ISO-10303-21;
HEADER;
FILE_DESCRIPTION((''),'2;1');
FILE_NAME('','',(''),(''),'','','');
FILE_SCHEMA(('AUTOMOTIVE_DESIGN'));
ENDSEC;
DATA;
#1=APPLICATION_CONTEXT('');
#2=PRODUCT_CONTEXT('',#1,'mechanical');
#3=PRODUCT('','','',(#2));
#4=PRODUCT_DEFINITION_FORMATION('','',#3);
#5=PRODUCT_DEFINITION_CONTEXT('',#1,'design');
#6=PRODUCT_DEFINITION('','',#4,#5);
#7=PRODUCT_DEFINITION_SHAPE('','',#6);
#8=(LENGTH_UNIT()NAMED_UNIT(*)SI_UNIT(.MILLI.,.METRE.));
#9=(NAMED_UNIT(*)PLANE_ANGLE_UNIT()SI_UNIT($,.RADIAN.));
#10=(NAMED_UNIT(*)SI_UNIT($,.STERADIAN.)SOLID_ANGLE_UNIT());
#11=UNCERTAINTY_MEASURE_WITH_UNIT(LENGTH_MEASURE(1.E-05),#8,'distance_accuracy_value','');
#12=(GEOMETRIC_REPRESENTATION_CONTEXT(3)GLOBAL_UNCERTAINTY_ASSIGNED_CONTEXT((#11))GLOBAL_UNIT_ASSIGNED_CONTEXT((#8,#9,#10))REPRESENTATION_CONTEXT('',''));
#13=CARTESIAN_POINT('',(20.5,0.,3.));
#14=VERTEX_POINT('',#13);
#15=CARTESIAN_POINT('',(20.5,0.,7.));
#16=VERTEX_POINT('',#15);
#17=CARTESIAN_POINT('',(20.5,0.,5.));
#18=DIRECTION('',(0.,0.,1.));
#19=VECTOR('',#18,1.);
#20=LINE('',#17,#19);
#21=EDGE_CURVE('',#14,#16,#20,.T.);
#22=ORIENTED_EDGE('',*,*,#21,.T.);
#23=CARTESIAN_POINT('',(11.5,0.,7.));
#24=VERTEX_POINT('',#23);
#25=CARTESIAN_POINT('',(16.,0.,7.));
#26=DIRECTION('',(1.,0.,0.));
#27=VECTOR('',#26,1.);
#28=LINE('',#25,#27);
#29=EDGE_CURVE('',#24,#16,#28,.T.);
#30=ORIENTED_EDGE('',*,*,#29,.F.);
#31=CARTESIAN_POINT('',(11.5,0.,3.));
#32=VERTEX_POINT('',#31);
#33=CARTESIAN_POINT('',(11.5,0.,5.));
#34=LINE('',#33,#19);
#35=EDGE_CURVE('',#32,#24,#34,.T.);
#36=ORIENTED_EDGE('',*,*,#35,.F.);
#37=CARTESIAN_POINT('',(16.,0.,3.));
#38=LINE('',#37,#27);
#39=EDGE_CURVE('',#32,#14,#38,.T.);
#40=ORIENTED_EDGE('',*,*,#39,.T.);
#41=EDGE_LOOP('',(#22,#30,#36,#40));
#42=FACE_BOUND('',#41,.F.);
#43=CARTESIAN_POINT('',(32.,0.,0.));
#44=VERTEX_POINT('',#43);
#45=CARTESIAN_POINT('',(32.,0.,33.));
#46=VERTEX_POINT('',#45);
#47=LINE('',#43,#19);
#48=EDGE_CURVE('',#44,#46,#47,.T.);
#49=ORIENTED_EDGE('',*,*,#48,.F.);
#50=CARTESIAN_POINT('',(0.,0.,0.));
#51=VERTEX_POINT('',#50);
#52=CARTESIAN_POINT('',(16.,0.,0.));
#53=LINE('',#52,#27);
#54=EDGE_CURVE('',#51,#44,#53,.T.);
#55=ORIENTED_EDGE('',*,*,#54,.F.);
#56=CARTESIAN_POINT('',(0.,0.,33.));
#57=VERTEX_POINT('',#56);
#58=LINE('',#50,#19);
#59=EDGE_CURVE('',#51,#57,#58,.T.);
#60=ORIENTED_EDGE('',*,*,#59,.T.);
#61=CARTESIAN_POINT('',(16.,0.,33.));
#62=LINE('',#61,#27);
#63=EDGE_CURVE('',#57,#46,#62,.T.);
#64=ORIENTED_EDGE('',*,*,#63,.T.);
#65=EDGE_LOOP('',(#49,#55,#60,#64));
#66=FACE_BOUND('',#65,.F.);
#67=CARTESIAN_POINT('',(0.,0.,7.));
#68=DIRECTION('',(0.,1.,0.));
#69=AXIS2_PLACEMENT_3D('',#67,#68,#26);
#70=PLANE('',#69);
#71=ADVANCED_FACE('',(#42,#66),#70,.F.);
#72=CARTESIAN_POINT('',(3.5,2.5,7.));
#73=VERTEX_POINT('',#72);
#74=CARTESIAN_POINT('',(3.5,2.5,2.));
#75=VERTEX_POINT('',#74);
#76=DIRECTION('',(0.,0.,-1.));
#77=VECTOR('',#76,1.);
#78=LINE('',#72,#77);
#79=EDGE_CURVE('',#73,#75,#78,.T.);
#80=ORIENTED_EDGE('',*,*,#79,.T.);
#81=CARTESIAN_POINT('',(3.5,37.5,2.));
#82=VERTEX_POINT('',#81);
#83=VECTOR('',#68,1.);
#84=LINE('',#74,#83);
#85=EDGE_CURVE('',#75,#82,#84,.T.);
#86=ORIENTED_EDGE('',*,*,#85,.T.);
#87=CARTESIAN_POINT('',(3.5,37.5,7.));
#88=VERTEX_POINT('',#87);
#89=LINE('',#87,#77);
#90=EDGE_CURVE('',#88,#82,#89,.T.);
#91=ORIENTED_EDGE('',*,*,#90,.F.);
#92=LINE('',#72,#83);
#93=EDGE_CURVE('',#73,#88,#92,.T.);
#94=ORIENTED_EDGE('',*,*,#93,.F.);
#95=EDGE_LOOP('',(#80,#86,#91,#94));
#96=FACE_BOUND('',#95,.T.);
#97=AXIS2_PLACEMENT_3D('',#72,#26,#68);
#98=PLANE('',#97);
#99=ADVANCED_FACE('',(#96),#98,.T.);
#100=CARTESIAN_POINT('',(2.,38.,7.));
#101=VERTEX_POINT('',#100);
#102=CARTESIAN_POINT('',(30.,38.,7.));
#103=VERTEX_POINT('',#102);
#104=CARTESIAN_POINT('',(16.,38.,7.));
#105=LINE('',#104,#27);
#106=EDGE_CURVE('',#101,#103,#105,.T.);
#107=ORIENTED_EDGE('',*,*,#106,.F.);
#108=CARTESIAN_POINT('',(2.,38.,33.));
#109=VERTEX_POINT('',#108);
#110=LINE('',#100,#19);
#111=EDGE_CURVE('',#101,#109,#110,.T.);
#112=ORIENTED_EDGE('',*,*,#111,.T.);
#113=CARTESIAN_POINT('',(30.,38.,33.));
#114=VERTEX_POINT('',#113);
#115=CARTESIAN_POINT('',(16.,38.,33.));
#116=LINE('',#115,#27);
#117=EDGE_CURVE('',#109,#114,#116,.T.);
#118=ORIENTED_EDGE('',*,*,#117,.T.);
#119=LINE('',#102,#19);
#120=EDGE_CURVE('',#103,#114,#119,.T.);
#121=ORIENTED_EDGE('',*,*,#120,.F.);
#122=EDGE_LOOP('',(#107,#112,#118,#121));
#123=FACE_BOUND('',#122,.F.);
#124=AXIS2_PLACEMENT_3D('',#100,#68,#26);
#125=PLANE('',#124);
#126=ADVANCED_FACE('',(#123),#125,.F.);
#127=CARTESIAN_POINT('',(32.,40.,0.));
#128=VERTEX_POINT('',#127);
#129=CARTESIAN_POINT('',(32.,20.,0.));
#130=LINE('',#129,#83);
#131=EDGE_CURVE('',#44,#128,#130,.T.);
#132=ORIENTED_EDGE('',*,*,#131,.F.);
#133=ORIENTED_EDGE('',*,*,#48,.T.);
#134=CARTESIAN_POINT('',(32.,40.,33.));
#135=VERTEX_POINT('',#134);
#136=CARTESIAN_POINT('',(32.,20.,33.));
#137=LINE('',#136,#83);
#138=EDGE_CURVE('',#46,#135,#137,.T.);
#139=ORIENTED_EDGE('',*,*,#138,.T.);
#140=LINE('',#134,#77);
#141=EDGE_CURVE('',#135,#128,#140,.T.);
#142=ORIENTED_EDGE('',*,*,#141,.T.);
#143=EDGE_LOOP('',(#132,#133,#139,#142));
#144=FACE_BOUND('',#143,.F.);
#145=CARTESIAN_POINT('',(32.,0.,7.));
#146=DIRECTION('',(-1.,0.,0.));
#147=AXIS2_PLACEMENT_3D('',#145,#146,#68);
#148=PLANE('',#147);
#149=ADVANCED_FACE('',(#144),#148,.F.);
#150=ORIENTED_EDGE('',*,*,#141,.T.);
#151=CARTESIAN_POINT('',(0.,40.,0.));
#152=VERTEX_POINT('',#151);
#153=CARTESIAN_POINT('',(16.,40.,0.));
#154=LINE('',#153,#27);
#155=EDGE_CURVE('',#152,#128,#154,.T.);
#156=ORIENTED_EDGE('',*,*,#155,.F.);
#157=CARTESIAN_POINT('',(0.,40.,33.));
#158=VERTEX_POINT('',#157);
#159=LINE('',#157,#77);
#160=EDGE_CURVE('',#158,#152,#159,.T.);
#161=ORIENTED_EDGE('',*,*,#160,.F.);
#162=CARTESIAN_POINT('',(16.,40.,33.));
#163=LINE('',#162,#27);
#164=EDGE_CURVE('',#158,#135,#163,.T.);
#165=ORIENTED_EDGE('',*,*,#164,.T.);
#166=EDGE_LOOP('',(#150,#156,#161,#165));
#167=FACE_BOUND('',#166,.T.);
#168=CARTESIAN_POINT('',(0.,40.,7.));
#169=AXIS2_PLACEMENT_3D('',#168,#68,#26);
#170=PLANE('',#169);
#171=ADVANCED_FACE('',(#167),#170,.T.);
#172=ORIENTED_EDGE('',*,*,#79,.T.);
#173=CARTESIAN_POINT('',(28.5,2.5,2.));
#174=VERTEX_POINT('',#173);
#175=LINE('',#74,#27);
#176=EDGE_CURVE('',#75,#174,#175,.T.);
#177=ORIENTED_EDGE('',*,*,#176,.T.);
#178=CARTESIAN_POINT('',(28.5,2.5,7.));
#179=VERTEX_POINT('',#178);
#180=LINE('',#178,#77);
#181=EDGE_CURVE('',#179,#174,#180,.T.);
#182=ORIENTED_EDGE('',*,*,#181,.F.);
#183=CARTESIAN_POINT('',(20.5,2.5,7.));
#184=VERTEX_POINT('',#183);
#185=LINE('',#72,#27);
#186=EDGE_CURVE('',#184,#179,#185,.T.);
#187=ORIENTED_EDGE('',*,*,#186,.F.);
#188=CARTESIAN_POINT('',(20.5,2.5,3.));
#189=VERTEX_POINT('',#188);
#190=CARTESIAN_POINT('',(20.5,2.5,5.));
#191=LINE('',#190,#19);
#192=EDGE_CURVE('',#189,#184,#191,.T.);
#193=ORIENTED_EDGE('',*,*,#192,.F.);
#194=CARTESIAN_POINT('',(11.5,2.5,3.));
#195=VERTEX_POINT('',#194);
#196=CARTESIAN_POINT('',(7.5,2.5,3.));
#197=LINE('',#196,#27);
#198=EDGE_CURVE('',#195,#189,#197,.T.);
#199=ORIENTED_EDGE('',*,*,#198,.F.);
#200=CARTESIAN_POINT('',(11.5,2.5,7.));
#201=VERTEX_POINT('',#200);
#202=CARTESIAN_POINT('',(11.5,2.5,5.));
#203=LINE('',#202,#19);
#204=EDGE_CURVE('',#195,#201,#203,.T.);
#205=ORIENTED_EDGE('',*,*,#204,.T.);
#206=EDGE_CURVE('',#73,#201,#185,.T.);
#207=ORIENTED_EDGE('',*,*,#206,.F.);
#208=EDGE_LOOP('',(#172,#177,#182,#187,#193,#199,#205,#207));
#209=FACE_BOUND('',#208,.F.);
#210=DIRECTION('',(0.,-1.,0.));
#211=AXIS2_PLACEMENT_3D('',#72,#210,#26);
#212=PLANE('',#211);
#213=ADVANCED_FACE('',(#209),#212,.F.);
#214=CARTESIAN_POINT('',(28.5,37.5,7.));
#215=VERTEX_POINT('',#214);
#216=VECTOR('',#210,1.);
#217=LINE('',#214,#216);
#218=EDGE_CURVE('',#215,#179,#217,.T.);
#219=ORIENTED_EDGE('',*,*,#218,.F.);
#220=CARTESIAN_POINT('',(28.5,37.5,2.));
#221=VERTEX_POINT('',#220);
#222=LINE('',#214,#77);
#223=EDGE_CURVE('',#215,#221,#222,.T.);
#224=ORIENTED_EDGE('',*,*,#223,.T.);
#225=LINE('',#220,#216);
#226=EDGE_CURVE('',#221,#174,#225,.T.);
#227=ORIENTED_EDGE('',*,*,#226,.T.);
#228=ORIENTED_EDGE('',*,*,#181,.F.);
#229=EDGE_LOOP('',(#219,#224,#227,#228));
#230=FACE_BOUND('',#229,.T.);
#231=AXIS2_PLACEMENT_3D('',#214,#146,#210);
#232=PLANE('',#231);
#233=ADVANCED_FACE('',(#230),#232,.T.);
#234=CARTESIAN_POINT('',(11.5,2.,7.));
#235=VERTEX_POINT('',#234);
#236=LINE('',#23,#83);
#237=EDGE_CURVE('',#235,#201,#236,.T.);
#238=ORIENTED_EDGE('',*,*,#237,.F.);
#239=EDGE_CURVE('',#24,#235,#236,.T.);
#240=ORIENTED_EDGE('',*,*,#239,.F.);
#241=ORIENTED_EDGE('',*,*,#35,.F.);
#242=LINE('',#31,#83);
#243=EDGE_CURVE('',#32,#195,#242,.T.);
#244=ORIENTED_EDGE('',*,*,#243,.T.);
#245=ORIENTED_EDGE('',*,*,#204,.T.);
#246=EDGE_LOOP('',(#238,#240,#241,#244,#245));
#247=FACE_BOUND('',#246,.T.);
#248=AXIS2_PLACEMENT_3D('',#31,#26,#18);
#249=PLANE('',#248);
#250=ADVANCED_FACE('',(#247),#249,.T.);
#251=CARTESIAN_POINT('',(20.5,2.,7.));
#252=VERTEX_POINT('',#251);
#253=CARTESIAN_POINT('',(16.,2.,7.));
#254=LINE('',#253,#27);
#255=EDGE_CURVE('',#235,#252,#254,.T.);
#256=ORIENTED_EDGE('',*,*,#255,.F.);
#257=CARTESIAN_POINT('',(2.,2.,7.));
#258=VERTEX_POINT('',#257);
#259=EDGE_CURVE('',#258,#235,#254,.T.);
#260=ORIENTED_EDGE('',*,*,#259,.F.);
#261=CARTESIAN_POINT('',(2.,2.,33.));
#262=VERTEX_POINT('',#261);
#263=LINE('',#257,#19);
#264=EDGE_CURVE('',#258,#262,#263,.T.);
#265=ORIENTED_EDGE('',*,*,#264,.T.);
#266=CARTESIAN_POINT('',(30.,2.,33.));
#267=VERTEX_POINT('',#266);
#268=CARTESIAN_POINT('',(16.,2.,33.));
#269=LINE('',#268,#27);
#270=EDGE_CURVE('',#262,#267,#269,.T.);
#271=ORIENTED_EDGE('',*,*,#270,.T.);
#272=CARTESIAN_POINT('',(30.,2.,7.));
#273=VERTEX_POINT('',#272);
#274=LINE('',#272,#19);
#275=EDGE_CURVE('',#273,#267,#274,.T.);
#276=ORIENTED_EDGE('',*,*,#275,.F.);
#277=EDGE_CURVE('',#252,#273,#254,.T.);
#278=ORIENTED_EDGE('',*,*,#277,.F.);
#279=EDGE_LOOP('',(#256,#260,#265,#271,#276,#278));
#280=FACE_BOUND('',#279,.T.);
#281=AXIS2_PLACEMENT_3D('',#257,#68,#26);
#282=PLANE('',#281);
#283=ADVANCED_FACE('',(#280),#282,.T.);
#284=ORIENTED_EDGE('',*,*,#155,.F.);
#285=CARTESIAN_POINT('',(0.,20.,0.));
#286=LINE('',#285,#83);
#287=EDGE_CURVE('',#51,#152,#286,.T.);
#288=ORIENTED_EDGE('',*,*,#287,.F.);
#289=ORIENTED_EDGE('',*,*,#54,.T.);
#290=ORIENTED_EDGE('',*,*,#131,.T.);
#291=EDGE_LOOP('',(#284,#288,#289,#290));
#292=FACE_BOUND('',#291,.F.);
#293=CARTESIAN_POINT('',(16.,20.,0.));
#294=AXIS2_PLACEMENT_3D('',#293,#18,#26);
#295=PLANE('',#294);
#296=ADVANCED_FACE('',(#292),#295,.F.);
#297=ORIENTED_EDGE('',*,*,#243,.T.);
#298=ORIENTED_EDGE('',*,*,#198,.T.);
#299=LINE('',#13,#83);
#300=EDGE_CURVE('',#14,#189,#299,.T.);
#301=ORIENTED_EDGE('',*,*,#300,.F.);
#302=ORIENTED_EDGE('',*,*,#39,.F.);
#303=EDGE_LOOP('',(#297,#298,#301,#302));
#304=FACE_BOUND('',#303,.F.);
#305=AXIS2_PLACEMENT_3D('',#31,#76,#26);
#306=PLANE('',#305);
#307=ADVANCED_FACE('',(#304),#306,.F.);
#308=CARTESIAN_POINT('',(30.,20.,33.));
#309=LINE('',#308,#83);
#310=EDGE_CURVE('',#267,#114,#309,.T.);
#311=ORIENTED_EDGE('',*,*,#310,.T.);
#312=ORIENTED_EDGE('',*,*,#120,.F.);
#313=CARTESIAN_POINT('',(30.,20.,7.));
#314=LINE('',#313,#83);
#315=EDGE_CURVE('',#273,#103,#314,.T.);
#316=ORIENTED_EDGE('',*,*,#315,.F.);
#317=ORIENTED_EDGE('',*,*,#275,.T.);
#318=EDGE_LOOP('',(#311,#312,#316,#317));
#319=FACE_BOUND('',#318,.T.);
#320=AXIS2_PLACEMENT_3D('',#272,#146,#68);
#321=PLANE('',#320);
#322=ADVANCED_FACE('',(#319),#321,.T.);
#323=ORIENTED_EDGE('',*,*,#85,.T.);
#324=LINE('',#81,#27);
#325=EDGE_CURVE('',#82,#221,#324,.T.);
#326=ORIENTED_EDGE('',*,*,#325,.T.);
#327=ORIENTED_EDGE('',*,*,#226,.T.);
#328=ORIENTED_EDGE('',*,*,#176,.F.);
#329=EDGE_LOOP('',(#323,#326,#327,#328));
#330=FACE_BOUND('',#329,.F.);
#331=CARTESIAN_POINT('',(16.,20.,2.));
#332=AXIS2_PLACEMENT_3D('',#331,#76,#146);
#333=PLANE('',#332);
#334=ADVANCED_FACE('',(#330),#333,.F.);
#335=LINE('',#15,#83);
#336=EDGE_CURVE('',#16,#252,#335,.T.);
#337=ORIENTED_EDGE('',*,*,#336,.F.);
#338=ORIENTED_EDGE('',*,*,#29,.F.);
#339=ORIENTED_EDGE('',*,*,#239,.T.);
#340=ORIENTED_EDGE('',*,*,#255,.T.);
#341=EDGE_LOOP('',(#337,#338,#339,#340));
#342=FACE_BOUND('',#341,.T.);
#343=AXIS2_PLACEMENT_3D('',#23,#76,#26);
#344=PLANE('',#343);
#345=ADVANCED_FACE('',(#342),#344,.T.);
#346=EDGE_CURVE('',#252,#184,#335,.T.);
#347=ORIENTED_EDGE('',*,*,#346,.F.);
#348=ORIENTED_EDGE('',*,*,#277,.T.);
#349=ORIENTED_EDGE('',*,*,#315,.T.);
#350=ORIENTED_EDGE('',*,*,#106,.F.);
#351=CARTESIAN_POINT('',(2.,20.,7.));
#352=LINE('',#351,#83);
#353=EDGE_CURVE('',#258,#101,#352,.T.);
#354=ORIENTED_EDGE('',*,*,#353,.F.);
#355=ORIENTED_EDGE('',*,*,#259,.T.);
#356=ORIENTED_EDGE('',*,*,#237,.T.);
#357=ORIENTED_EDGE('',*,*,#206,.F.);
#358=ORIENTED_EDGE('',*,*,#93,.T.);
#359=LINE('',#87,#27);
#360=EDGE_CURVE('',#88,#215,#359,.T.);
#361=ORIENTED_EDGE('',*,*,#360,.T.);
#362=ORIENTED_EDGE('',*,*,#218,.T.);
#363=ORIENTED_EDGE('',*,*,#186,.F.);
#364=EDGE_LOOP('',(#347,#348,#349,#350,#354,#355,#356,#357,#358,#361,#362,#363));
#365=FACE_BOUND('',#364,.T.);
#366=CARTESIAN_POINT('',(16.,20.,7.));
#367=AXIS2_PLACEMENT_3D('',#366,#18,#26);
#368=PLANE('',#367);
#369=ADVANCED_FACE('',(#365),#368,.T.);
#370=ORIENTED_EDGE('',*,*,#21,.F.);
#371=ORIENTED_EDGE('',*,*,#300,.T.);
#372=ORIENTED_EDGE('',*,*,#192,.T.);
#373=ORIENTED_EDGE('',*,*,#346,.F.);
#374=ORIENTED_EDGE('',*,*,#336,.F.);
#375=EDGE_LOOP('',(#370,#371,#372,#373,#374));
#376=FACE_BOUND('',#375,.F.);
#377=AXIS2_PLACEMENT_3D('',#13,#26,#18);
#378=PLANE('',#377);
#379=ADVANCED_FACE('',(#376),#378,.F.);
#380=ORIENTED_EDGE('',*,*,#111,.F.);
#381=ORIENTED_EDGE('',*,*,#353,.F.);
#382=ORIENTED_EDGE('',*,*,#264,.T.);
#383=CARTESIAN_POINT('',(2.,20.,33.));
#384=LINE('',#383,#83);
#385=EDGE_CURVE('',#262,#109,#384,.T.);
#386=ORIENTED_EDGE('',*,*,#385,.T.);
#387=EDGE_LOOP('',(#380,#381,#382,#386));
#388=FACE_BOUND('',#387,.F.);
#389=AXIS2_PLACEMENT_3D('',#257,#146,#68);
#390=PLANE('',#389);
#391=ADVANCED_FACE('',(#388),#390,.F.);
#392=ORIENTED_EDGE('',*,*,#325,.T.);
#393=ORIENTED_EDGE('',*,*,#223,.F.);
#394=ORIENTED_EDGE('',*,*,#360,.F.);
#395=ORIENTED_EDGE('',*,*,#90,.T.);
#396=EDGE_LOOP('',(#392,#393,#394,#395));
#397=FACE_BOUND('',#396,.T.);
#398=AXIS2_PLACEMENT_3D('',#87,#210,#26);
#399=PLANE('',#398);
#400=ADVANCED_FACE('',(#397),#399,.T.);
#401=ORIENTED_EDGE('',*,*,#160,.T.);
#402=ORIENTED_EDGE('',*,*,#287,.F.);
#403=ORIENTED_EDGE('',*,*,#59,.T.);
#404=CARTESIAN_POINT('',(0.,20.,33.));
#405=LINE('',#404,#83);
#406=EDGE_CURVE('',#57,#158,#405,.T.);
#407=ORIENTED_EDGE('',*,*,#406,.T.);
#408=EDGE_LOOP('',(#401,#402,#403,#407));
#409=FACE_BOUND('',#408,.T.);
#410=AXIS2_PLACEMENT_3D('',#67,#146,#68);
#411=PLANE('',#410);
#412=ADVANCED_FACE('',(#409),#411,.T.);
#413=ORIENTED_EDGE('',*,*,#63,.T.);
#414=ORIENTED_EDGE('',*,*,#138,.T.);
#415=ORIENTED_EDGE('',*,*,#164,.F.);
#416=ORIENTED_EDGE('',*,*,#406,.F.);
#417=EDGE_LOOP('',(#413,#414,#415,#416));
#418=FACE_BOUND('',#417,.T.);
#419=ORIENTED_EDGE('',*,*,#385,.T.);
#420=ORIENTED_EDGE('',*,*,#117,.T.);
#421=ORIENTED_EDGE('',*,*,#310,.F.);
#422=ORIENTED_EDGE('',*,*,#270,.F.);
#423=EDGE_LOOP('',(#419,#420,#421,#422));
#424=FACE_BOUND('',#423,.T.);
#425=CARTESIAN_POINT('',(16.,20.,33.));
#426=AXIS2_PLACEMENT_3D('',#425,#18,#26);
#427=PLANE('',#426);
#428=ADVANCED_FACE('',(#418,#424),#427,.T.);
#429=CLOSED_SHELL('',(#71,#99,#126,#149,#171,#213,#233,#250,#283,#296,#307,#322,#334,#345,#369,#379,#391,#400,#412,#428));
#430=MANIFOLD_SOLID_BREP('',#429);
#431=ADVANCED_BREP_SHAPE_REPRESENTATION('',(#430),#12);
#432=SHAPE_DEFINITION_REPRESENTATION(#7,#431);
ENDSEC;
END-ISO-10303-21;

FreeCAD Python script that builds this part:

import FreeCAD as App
import Part
import Sketcher
from FreeCAD import Vector
Q = App.Units.Quantity

doc = App.newDocument("Part")
body = doc.addObject("PartDesign::Body", "Body")

# Sketch on XY plane
sketch1 = body.newObject("Sketcher::SketchObject", "Sketch")
sketch1.AttachmentSupport = (doc.getObject("XY_Plane"), [""])
sketch1.MapMode = "FlatFace"
sketch1.addGeometry([
    Part.LineSegment(Vector(0, 40, 0), Vector(0, 0, 0)),
    Part.LineSegment(Vector(0, 0, 0), Vector(32, 0, 0)),
    Part.LineSegment(Vector(32, 0, 0), Vector(32, 40, 0)),
    Part.LineSegment(Vector(32, 40, 0), Vector(0, 40, 0)),
], False)
sketch1.addConstraint([
    Sketcher.Constraint("Coincident", 0, 2, 1, 1),
    Sketcher.Constraint("Coincident", 1, 2, 2, 1),
    Sketcher.Constraint("Coincident", 2, 2, 3, 1),
    Sketcher.Constraint("Coincident", 3, 2, 0, 1),
    Sketcher.Constraint("Vertical", 0),
    Sketcher.Constraint("Horizontal", 1),
    Sketcher.Constraint("Vertical", 2),
    Sketcher.Constraint("Horizontal", 3),
    Sketcher.Constraint("Coincident", 0, 2, -1, 1),
    Sketcher.Constraint("DistanceX", 1, 1, 1, 2, Q("32 mm")),
    Sketcher.Constraint("DistanceY", 0, 2, 0, 1, Q("40 mm")),
])
pad1 = body.newObject("PartDesign::Pad", "Pad")
pad1.Profile = sketch1
pad1.Length = 7

# Sketch on XY plane
sketch2 = body.newObject("Sketcher::SketchObject", "Sketch001")
sketch2.AttachmentSupport = (doc.getObject("XY_Plane"), [""])
sketch2.MapMode = "FlatFace"
sketch2.AttachmentOffset = App.Placement(Vector(0, 0, 7), App.Rotation())
sketch2.addGeometry([
    Part.LineSegment(Vector(0, 40, 0), Vector(0, 0, 0)),  # 0
    Part.LineSegment(Vector(0, 0, 0), Vector(32, 0, 0)),  # 1
    Part.LineSegment(Vector(32, 0, 0), Vector(32, 40, 0)),  # 2
    Part.LineSegment(Vector(32, 40, 0), Vector(0, 40, 0)),  # 3
    Part.LineSegment(Vector(30, 2, 0), Vector(2, 2, 0)),  # 4
    Part.LineSegment(Vector(2, 2, 0), Vector(2, 38, 0)),  # 5
    Part.LineSegment(Vector(2, 38, 0), Vector(30, 38, 0)),  # 6
    Part.LineSegment(Vector(30, 38, 0), Vector(30, 2, 0)),  # 7
], False)
sketch2.addConstraint([
    Sketcher.Constraint("Coincident", 0, 2, 1, 1),
    Sketcher.Constraint("Coincident", 1, 2, 2, 1),
    Sketcher.Constraint("Coincident", 2, 2, 3, 1),
    Sketcher.Constraint("Coincident", 3, 2, 0, 1),
    Sketcher.Constraint("Coincident", 4, 2, 5, 1),
    Sketcher.Constraint("Coincident", 5, 2, 6, 1),
    Sketcher.Constraint("Coincident", 6, 2, 7, 1),
    Sketcher.Constraint("Coincident", 7, 2, 4, 1),
    Sketcher.Constraint("Vertical", 0),
    Sketcher.Constraint("Horizontal", 1),
    Sketcher.Constraint("Vertical", 2),
    Sketcher.Constraint("Horizontal", 3),
    Sketcher.Constraint("Horizontal", 4),
    Sketcher.Constraint("Vertical", 5),
    Sketcher.Constraint("Horizontal", 6),
    Sketcher.Constraint("Vertical", 7),
    Sketcher.Constraint("Coincident", 0, 2, -1, 1),
    Sketcher.Constraint("DistanceX", 1, 1, 1, 2, Q("32 mm")),
    Sketcher.Constraint("DistanceX", 4, 2, 4, 1, Q("28 mm")),
    Sketcher.Constraint("DistanceY", 0, 2, 0, 1, Q("40 mm")),
    Sketcher.Constraint("DistanceY", 5, 1, 5, 2, Q("36 mm")),
    Sketcher.Constraint("DistanceX", -1, 1, 4, 2, Q("2 mm")),
    Sketcher.Constraint("DistanceY", -1, 1, 4, 2, Q("2 mm")),
])
pad2 = body.newObject("PartDesign::Pad", "Pad001")
pad2.Profile = sketch2
pad2.Length = 26

# Sketch on XY plane
sketch3 = body.newObject("Sketcher::SketchObject", "Sketch002")
sketch3.AttachmentSupport = (doc.getObject("XY_Plane"), [""])
sketch3.MapMode = "FlatFace"
sketch3.AttachmentOffset = App.Placement(Vector(0, 0, 7), App.Rotation())
sketch3.addGeometry([
    Part.LineSegment(Vector(28.5, 37.5, 0), Vector(3.5, 37.5, 0)),
    Part.LineSegment(Vector(3.5, 37.5, 0), Vector(3.5, 2.5, 0)),
    Part.LineSegment(Vector(3.5, 2.5, 0), Vector(28.5, 2.5, 0)),
    Part.LineSegment(Vector(28.5, 2.5, 0), Vector(28.5, 37.5, 0)),
], False)
sketch3.addConstraint([
    Sketcher.Constraint("Coincident", 0, 2, 1, 1),
    Sketcher.Constraint("Coincident", 1, 2, 2, 1),
    Sketcher.Constraint("Coincident", 2, 2, 3, 1),
    Sketcher.Constraint("Coincident", 3, 2, 0, 1),
    Sketcher.Constraint("Horizontal", 0),
    Sketcher.Constraint("Vertical", 1),
    Sketcher.Constraint("Horizontal", 2),
    Sketcher.Constraint("Vertical", 3),
    Sketcher.Constraint("DistanceX", 0, 2, 0, 1, Q("25 mm")),
    Sketcher.Constraint("DistanceY", 1, 2, 1, 1, Q("35 mm")),
    Sketcher.Constraint("DistanceX", -1, 1, 0, 2, Q("3.5 mm")),
    Sketcher.Constraint("DistanceY", -1, 1, 0, 2, Q("37.5 mm")),
])
pocket1 = body.newObject("PartDesign::Pocket", "Pocket")
pocket1.Profile = sketch3
pocket1.Length = 5

# Sketch on XZ plane
sketch4 = body.newObject("Sketcher::SketchObject", "Sketch003")
sketch4.AttachmentSupport = (doc.getObject("XZ_Plane"), [""])
sketch4.MapMode = "FlatFace"
sketch4.addGeometry([
    Part.LineSegment(Vector(11.5, 7, 0), Vector(11.5, 3, 0)),
    Part.LineSegment(Vector(11.5, 3, 0), Vector(20.5, 3, 0)),
    Part.LineSegment(Vector(20.5, 3, 0), Vector(20.5, 7, 0)),
    Part.LineSegment(Vector(20.5, 7, 0), Vector(11.5, 7, 0)),
], False)
sketch4.addConstraint([
    Sketcher.Constraint("Coincident", 0, 2, 1, 1),
    Sketcher.Constraint("Coincident", 1, 2, 2, 1),
    Sketcher.Constraint("Coincident", 2, 2, 3, 1),
    Sketcher.Constraint("Coincident", 3, 2, 0, 1),
    Sketcher.Constraint("Vertical", 0),
    Sketcher.Constraint("Horizontal", 1),
    Sketcher.Constraint("Vertical", 2),
    Sketcher.Constraint("Horizontal", 3),
    Sketcher.Constraint("DistanceX", 1, 1, 1, 2, Q("9 mm")),
    Sketcher.Constraint("DistanceY", 0, 2, 0, 1, Q("4 mm")),
    Sketcher.Constraint("DistanceY", -1, 1, 0, 2, Q("3 mm")),
    Sketcher.Constraint("DistanceX", -1, 1, 0, 2, Q("11.5 mm")),
])
pocket2 = body.newObject("PartDesign::Pocket", "Pocket001")
pocket2.Profile = sketch4
pocket2.Length = 5

doc.recompute()
